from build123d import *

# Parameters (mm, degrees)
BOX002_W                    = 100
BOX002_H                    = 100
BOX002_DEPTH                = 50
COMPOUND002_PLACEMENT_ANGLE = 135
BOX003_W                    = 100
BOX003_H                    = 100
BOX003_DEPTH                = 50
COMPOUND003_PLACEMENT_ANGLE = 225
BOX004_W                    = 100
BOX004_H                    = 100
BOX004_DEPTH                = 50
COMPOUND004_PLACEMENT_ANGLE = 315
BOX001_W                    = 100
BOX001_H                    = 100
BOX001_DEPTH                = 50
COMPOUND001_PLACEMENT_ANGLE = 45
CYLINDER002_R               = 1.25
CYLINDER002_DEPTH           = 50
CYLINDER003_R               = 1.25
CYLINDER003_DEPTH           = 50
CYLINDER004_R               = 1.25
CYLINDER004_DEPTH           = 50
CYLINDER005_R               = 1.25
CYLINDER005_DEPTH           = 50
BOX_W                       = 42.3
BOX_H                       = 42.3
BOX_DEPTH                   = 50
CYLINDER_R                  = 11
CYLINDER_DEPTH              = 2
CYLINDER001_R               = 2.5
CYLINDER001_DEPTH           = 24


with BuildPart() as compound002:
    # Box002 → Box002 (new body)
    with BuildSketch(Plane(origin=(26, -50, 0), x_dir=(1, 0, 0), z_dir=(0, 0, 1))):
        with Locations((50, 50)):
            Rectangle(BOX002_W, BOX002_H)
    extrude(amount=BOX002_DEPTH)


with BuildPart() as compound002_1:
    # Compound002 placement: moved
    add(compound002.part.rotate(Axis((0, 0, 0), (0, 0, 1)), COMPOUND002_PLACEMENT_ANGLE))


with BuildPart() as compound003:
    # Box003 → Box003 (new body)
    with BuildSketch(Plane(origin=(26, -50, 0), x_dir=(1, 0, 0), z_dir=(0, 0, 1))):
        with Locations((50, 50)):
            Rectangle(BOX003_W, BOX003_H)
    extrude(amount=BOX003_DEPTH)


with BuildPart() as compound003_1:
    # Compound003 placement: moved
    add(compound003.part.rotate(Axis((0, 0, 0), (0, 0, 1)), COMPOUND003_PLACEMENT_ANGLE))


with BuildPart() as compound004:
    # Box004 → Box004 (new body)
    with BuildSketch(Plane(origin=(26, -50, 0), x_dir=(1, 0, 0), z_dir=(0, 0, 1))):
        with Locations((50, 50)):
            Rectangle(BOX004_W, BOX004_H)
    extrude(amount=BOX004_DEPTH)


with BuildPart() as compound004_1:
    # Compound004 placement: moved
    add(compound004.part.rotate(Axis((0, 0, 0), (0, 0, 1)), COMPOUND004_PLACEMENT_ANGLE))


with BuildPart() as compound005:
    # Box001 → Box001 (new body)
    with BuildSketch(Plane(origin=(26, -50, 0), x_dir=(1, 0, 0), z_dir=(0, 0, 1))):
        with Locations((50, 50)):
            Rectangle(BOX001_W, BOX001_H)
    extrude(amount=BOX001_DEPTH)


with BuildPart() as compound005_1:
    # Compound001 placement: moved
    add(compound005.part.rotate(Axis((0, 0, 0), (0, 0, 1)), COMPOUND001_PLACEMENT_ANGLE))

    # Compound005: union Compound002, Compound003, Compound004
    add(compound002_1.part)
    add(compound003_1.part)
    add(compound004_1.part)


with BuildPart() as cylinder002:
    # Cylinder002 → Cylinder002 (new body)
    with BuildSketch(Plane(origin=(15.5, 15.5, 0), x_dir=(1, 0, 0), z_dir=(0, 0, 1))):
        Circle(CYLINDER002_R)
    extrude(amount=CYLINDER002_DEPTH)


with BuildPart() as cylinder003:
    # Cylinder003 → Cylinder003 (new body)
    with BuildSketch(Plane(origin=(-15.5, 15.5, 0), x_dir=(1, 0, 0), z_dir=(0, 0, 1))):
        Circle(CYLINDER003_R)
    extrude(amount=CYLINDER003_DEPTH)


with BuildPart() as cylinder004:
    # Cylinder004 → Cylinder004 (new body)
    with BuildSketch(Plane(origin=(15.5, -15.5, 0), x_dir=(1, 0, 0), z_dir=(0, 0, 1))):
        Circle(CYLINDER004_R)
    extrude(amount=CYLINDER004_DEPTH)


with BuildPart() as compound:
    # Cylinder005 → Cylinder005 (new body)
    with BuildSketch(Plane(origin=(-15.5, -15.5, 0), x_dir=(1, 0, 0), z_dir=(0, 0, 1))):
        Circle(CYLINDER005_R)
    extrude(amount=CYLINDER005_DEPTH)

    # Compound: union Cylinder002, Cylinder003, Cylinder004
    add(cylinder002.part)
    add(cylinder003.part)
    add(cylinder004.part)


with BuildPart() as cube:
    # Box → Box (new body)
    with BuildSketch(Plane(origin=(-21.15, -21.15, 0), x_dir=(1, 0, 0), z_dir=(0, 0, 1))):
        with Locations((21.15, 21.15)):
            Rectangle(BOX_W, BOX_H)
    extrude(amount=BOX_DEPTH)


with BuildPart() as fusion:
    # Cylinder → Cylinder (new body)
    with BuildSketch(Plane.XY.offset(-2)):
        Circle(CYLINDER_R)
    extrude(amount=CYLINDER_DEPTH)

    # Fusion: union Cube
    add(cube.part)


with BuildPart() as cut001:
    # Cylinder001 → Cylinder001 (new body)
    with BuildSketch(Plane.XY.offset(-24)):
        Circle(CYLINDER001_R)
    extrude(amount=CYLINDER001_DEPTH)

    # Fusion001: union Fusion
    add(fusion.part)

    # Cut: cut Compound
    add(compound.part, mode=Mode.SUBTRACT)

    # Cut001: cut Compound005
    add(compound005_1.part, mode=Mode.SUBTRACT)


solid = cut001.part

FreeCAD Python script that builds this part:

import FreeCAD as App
import Part
import Sketcher
from FreeCAD import Vector

doc = App.newDocument("Part")
params = doc.addObject("Spreadsheet::Sheet", "Params")
for row, (alias, value) in enumerate([
    ("sketch1_width", "100 mm"),
    ("pad1_length", "50 mm"),
    ("sketch2_width", "100 mm"),
    ("pad2_length", "50 mm"),
    ("sketch3_width", "100 mm"),
    ("pad3_length", "50 mm"),
    ("sketch4_width", "100 mm"),
    ("pad4_length", "50 mm"),
    ("sketch5_diameter", "2.5 mm"),
    ("pad5_length", "50 mm"),
    ("sketch6_diameter", "2.5 mm"),
    ("pad6_length", "50 mm"),
    ("sketch7_diameter", "2.5 mm"),
    ("pad7_length", "50 mm"),
    ("sketch8_diameter", "2.5 mm"),
    ("pad8_length", "50 mm"),
    ("sketch9_width", "42.3 mm"),
    ("pad9_length", "50 mm"),
    ("sketch10_diameter", "22 mm"),
    ("pad10_length", "2 mm"),
    ("sketch11_diameter", "5 mm"),
    ("pad11_length", "24 mm"),
], start=1):
    params.set(f"A{row}", alias)
    params.set(f"B{row}", "=" + value)
    params.setAlias(f"B{row}", alias)

body = doc.addObject("PartDesign::Body", "Body")

sketch1 = body.newObject("Sketcher::SketchObject", "Sketch")
sketch1.AttachmentSupport = (doc.getObject("XY_Plane"), [""])
sketch1.MapMode = "FlatFace"
sketch1.addGeometry(Part.LineSegment(Vector(26, 50, 0), Vector(26, -50, 0)), False)
sketch1.addGeometry(Part.LineSegment(Vector(26, -50, 0), Vector(126, -50, 0)), False)
sketch1.addGeometry(Part.LineSegment(Vector(126, -50, 0), Vector(126, 50, 0)), False)
sketch1.addGeometry(Part.LineSegment(Vector(126, 50, 0), Vector(26, 50, 0)), False)
sketch1.addConstraint(Sketcher.Constraint("Coincident", 0, 2, 1, 1))
sketch1.addConstraint(Sketcher.Constraint("Coincident", 1, 2, 2, 1))
sketch1.addConstraint(Sketcher.Constraint("Coincident", 2, 2, 3, 1))
sketch1.addConstraint(Sketcher.Constraint("Coincident", 3, 2, 0, 1))
sketch1.addConstraint(Sketcher.Constraint("Vertical", 0))
sketch1.addConstraint(Sketcher.Constraint("Horizontal", 1))
sketch1.addConstraint(Sketcher.Constraint("Vertical", 2))
sketch1.addConstraint(Sketcher.Constraint("Horizontal", 3))
sketch1.addConstraint(Sketcher.Constraint("Equal", 3, 0))
sketch1.addConstraint(Sketcher.Constraint("DistanceX", 1, 1, 1, 2, 100.0))
sketch1.addConstraint(Sketcher.Constraint("DistanceX", -1, 1, 0, 2, 26.0))
sketch1.addConstraint(Sketcher.Constraint("DistanceY", 0, 2, -1, 1, 50.0))
sketch1.setExpression("Constraints[9]", "Params.sketch1_width")
pad1 = body.newObject("PartDesign::Pad", "Pad")
pad1.Profile = sketch1
pad1.setExpression("Length", "Params.pad1_length")
body2 = doc.addObject("PartDesign::Body", "Body001")
doc.recompute()

body.Placement = App.Placement(Vector(0, 0, 0), App.Rotation(Vector(0, 0, 1), 135))
boolean = body2.newObject("PartDesign::Boolean", "Boolean")
boolean.Type = "Fuse"
boolean.addObjects([body])
body3 = doc.addObject("PartDesign::Body", "Body002")

sketch2 = body3.newObject("Sketcher::SketchObject", "Sketch001")
sketch2.AttachmentSupport = (doc.getObject("XY_Plane002"), [""])
sketch2.MapMode = "FlatFace"
sketch2.addGeometry(Part.LineSegment(Vector(26, 50, 0), Vector(26, -50, 0)), False)
sketch2.addGeometry(Part.LineSegment(Vector(26, -50, 0), Vector(126, -50, 0)), False)
sketch2.addGeometry(Part.LineSegment(Vector(126, -50, 0), Vector(126, 50, 0)), False)
sketch2.addGeometry(Part.LineSegment(Vector(126, 50, 0), Vector(26, 50, 0)), False)
sketch2.addConstraint(Sketcher.Constraint("Coincident", 0, 2, 1, 1))
sketch2.addConstraint(Sketcher.Constraint("Coincident", 1, 2, 2, 1))
sketch2.addConstraint(Sketcher.Constraint("Coincident", 2, 2, 3, 1))
sketch2.addConstraint(Sketcher.Constraint("Coincident", 3, 2, 0, 1))
sketch2.addConstraint(Sketcher.Constraint("Vertical", 0))
sketch2.addConstraint(Sketcher.Constraint("Horizontal", 1))
sketch2.addConstraint(Sketcher.Constraint("Vertical", 2))
sketch2.addConstraint(Sketcher.Constraint("Horizontal", 3))
sketch2.addConstraint(Sketcher.Constraint("Equal", 3, 0))
sketch2.addConstraint(Sketcher.Constraint("DistanceX", 1, 1, 1, 2, 100.0))
sketch2.addConstraint(Sketcher.Constraint("DistanceX", -1, 1, 0, 2, 26.0))
sketch2.addConstraint(Sketcher.Constraint("DistanceY", 0, 2, -1, 1, 50.0))
sketch2.setExpression("Constraints[9]", "Params.sketch2_width")
pad2 = body3.newObject("PartDesign::Pad", "Pad001")
pad2.Profile = sketch2
pad2.setExpression("Length", "Params.pad2_length")
body4 = doc.addObject("PartDesign::Body", "Body003")
doc.recompute()

body3.Placement = App.Placement(Vector(0, 0, 0), App.Rotation(Vector(0, 0, 1), 225))
boolean2 = body4.newObject("PartDesign::Boolean", "Boolean001")
boolean2.Type = "Fuse"
boolean2.addObjects([body3])
body5 = doc.addObject("PartDesign::Body", "Body004")

sketch3 = body5.newObject("Sketcher::SketchObject", "Sketch002")
sketch3.AttachmentSupport = (doc.getObject("XY_Plane004"), [""])
sketch3.MapMode = "FlatFace"
sketch3.addGeometry(Part.LineSegment(Vector(26, 50, 0), Vector(26, -50, 0)), False)
sketch3.addGeometry(Part.LineSegment(Vector(26, -50, 0), Vector(126, -50, 0)), False)
sketch3.addGeometry(Part.LineSegment(Vector(126, -50, 0), Vector(126, 50, 0)), False)
sketch3.addGeometry(Part.LineSegment(Vector(126, 50, 0), Vector(26, 50, 0)), False)
sketch3.addConstraint(Sketcher.Constraint("Coincident", 0, 2, 1, 1))
sketch3.addConstraint(Sketcher.Constraint("Coincident", 1, 2, 2, 1))
sketch3.addConstraint(Sketcher.Constraint("Coincident", 2, 2, 3, 1))
sketch3.addConstraint(Sketcher.Constraint("Coincident", 3, 2, 0, 1))
sketch3.addConstraint(Sketcher.Constraint("Vertical", 0))
sketch3.addConstraint(Sketcher.Constraint("Horizontal", 1))
sketch3.addConstraint(Sketcher.Constraint("Vertical", 2))
sketch3.addConstraint(Sketcher.Constraint("Horizontal", 3))
sketch3.addConstraint(Sketcher.Constraint("Equal", 3, 0))
sketch3.addConstraint(Sketcher.Constraint("DistanceX", 1, 1, 1, 2, 100.0))
sketch3.addConstraint(Sketcher.Constraint("DistanceX", -1, 1, 0, 2, 26.0))
sketch3.addConstraint(Sketcher.Constraint("DistanceY", 0, 2, -1, 1, 50.0))
sketch3.setExpression("Constraints[9]", "Params.sketch3_width")
pad3 = body5.newObject("PartDesign::Pad", "Pad002")
pad3.Profile = sketch3
pad3.setExpression("Length", "Params.pad3_length")
body6 = doc.addObject("PartDesign::Body", "Body005")
doc.recompute()

body5.Placement = App.Placement(Vector(0, 0, 0), App.Rotation(Vector(0, 0, 1), 315))
boolean3 = body6.newObject("PartDesign::Boolean", "Boolean002")
boolean3.Type = "Fuse"
boolean3.addObjects([body5])
body7 = doc.addObject("PartDesign::Body", "Body006")

sketch4 = body7.newObject("Sketcher::SketchObject", "Sketch003")
sketch4.AttachmentSupport = (doc.getObject("XY_Plane006"), [""])
sketch4.MapMode = "FlatFace"
sketch4.addGeometry(Part.LineSegment(Vector(26, 50, 0), Vector(26, -50, 0)), False)
sketch4.addGeometry(Part.LineSegment(Vector(26, -50, 0), Vector(126, -50, 0)), False)
sketch4.addGeometry(Part.LineSegment(Vector(126, -50, 0), Vector(126, 50, 0)), False)
sketch4.addGeometry(Part.LineSegment(Vector(126, 50, 0), Vector(26, 50, 0)), False)
sketch4.addConstraint(Sketcher.Constraint("Coincident", 0, 2, 1, 1))
sketch4.addConstraint(Sketcher.Constraint("Coincident", 1, 2, 2, 1))
sketch4.addConstraint(Sketcher.Constraint("Coincident", 2, 2, 3, 1))
sketch4.addConstraint(Sketcher.Constraint("Coincident", 3, 2, 0, 1))
sketch4.addConstraint(Sketcher.Constraint("Vertical", 0))
sketch4.addConstraint(Sketcher.Constraint("Horizontal", 1))
sketch4.addConstraint(Sketcher.Constraint("Vertical", 2))
sketch4.addConstraint(Sketcher.Constraint("Horizontal", 3))
sketch4.addConstraint(Sketcher.Constraint("Equal", 3, 0))
sketch4.addConstraint(Sketcher.Constraint("DistanceX", 1, 1, 1, 2, 100.0))
sketch4.addConstraint(Sketcher.Constraint("DistanceX", -1, 1, 0, 2, 26.0))
sketch4.addConstraint(Sketcher.Constraint("DistanceY", 0, 2, -1, 1, 50.0))
sketch4.setExpression("Constraints[9]", "Params.sketch4_width")
pad4 = body7.newObject("PartDesign::Pad", "Pad003")
pad4.Profile = sketch4
pad4.setExpression("Length", "Params.pad4_length")
body8 = doc.addObject("PartDesign::Body", "Body007")
doc.recompute()

body7.Placement = App.Placement(Vector(0, 0, 0), App.Rotation(Vector(0, 0, 1), 45))
boolean4 = body8.newObject("PartDesign::Boolean", "Boolean003")
boolean4.Type = "Fuse"
boolean4.addObjects([body7])
doc.recompute()

boolean5 = body8.newObject("PartDesign::Boolean", "Boolean004")
boolean5.Type = "Fuse"
boolean5.addObjects([body2])
doc.recompute()

boolean6 = body8.newObject("PartDesign::Boolean", "Boolean005")
boolean6.Type = "Fuse"
boolean6.addObjects([body4])
doc.recompute()

boolean7 = body8.newObject("PartDesign::Boolean", "Boolean006")
boolean7.Type = "Fuse"
boolean7.addObjects([body6])
body9 = doc.addObject("PartDesign::Body", "Body008")

sketch5 = body9.newObject("Sketcher::SketchObject", "Sketch004")
sketch5.AttachmentSupport = (doc.getObject("XY_Plane008"), [""])
sketch5.MapMode = "FlatFace"
sketch5.addGeometry(Part.Circle(Vector(15.5, 15.5, 0), Vector(0, 0, 1), 1.2), False)
sketch5.addConstraint(Sketcher.Constraint("Diameter", 0, 2.5))
sketch5.addConstraint(Sketcher.Constraint("DistanceX", -1, 1, 0, 3, 15.5))
sketch5.addConstraint(Sketcher.Constraint("DistanceY", -1, 1, 0, 3, 15.5))
sketch5.setExpression("Constraints[0]", "Params.sketch5_diameter")
pad5 = body9.newObject("PartDesign::Pad", "Pad004")
pad5.Profile = sketch5
pad5.setExpression("Length", "Params.pad5_length")
body10 = doc.addObject("PartDesign::Body", "Body009")

sketch6 = body10.newObject("Sketcher::SketchObject", "Sketch005")
sketch6.AttachmentSupport = (doc.getObject("XY_Plane009"), [""])
sketch6.MapMode = "FlatFace"
sketch6.addGeometry(Part.Circle(Vector(-15.5, 15.5, 0), Vector(0, 0, 1), 1.2), False)
sketch6.addConstraint(Sketcher.Constraint("Diameter", 0, 2.5))
sketch6.addConstraint(Sketcher.Constraint("DistanceX", 0, 3, -1, 1, 15.5))
sketch6.addConstraint(Sketcher.Constraint("DistanceY", -1, 1, 0, 3, 15.5))
sketch6.setExpression("Constraints[0]", "Params.sketch6_diameter")
pad6 = body10.newObject("PartDesign::Pad", "Pad005")
pad6.Profile = sketch6
pad6.setExpression("Length", "Params.pad6_length")
body11 = doc.addObject("PartDesign::Body", "Body010")

sketch7 = body11.newObject("Sketcher::SketchObject", "Sketch006")
sketch7.AttachmentSupport = (doc.getObject("XY_Plane010"), [""])
sketch7.MapMode = "FlatFace"
sketch7.addGeometry(Part.Circle(Vector(15.5, -15.5, 0), Vector(0, 0, 1), 1.2), False)
sketch7.addConstraint(Sketcher.Constraint("Diameter", 0, 2.5))
sketch7.addConstraint(Sketcher.Constraint("DistanceX", -1, 1, 0, 3, 15.5))
sketch7.addConstraint(Sketcher.Constraint("DistanceY", 0, 3, -1, 1, 15.5))
sketch7.setExpression("Constraints[0]", "Params.sketch7_diameter")
pad7 = body11.newObject("PartDesign::Pad", "Pad006")
pad7.Profile = sketch7
pad7.setExpression("Length", "Params.pad7_length")
body12 = doc.addObject("PartDesign::Body", "Body011")
body12.AllowCompound = True

sketch8 = body12.newObject("Sketcher::SketchObject", "Sketch007")
sketch8.AttachmentSupport = (doc.getObject("XY_Plane011"), [""])
sketch8.MapMode = "FlatFace"
sketch8.addGeometry(Part.Circle(Vector(-15.5, -15.5, 0), Vector(0, 0, 1), 1.2), False)
sketch8.addConstraint(Sketcher.Constraint("Diameter", 0, 2.5))
sketch8.addConstraint(Sketcher.Constraint("DistanceX", 0, 3, -1, 1, 15.5))
sketch8.addConstraint(Sketcher.Constraint("DistanceY", 0, 3, -1, 1, 15.5))
sketch8.setExpression("Constraints[0]", "Params.sketch8_diameter")
pad8 = body12.newObject("PartDesign::Pad", "Pad007")
pad8.Profile = sketch8
pad8.setExpression("Length", "Params.pad8_length")
doc.recompute()

boolean8 = body12.newObject("PartDesign::Boolean", "Boolean007")
boolean8.Type = "Fuse"
boolean8.addObjects([body9])
doc.recompute()

boolean9 = body12.newObject("PartDesign::Boolean", "Boolean008")
boolean9.Type = "Fuse"
boolean9.addObjects([body10])
doc.recompute()

boolean10 = body12.newObject("PartDesign::Boolean", "Boolean009")
boolean10.Type = "Fuse"
boolean10.addObjects([body11])
body13 = doc.addObject("PartDesign::Body", "Body012")

sketch9 = body13.newObject("Sketcher::SketchObject", "Sketch008")
sketch9.AttachmentSupport = (doc.getObject("XY_Plane012"), [""])
sketch9.MapMode = "FlatFace"
sketch9.addGeometry(Part.LineSegment(Vector(-21, 21, 0), Vector(-21, -21, 0)), False)
sketch9.addGeometry(Part.LineSegment(Vector(-21, -21, 0), Vector(21, -21, 0)), False)
sketch9.addGeometry(Part.LineSegment(Vector(21, -21, 0), Vector(21, 21, 0)), False)
sketch9.addGeometry(Part.LineSegment(Vector(21, 21, 0), Vector(-21, 21, 0)), False)
sketch9.addConstraint(Sketcher.Constraint("Coincident", 0, 2, 1, 1))
sketch9.addConstraint(Sketcher.Constraint("Coincident", 1, 2, 2, 1))
sketch9.addConstraint(Sketcher.Constraint("Coincident", 2, 2, 3, 1))
sketch9.addConstraint(Sketcher.Constraint("Coincident", 3, 2, 0, 1))
sketch9.addConstraint(Sketcher.Constraint("Vertical", 0))
sketch9.addConstraint(Sketcher.Constraint("Horizontal", 1))
sketch9.addConstraint(Sketcher.Constraint("Vertical", 2))
sketch9.addConstraint(Sketcher.Constraint("Horizontal", 3))
sketch9.addConstraint(Sketcher.Constraint("Symmetric", 0, 2, 2, 2, -1, 1))
sketch9.addConstraint(Sketcher.Constraint("Equal", 3, 0))
sketch9.addConstraint(Sketcher.Constraint("DistanceX", 1, 1, 1, 2, 42.3))
sketch9.setExpression("Constraints[10]", "Params.sketch9_width")
pad9 = body13.newObject("PartDesign::Pad", "Pad008")
pad9.Profile = sketch9
pad9.setExpression("Length", "Params.pad9_length")
body14 = doc.addObject("PartDesign::Body", "Body013")

sketch10 = body14.newObject("Sketcher::SketchObject", "Sketch009")
sketch10.AttachmentSupport = (doc.getObject("XY_Plane013"), [""])
sketch10.MapMode = "FlatFace"
sketch10.AttachmentOffset = App.Placement(Vector(0, 0, -2), App.Rotation())
sketch10.addGeometry(Part.Circle(Vector(0, 0, 0), Vector(0, 0, 1), 11), False)
sketch10.addConstraint(Sketcher.Constraint("Coincident", 0, 3, -1, 1))
sketch10.addConstraint(Sketcher.Constraint("Diameter", 0, 22.0))
sketch10.setExpression("Constraints[1]", "Params.sketch10_diameter")
pad10 = body14.newObject("PartDesign::Pad", "Pad009")
pad10.Profile = sketch10
pad10.setExpression("Length", "Params.pad10_length")
doc.recompute()

boolean11 = body14.newObject("PartDesign::Boolean", "Boolean010")
boolean11.Type = "Fuse"
boolean11.addObjects([body13])
body15 = doc.addObject("PartDesign::Body", "Body014")

sketch11 = body15.newObject("Sketcher::SketchObject", "Sketch010")
sketch11.AttachmentSupport = (doc.getObject("XY_Plane014"), [""])
sketch11.MapMode = "FlatFace"
sketch11.AttachmentOffset = App.Placement(Vector(0, 0, -24), App.Rotation())
sketch11.addGeometry(Part.Circle(Vector(0, 0, 0), Vector(0, 0, 1), 2.5), False)
sketch11.addConstraint(Sketcher.Constraint("Coincident", 0, 3, -1, 1))
sketch11.addConstraint(Sketcher.Constraint("Diameter", 0, 5.0))
sketch11.setExpression("Constraints[1]", "Params.sketch11_diameter")
pad11 = body15.newObject("PartDesign::Pad", "Pad010")
pad11.Profile = sketch11
pad11.setExpression("Length", "Params.pad11_length")
doc.recompute()

boolean12 = body15.newObject("PartDesign::Boolean", "Boolean011")
boolean12.Type = "Fuse"
boolean12.addObjects([body14])
doc.recompute()

boolean13 = body15.newObject("PartDesign::Boolean", "Boolean012")
boolean13.Type = "Cut"
boolean13.addObjects([body12])
doc.recompute()

boolean14 = body15.newObject("PartDesign::Boolean", "Boolean013")
boolean14.Type = "Cut"
boolean14.addObjects([body8])

doc.recompute()
